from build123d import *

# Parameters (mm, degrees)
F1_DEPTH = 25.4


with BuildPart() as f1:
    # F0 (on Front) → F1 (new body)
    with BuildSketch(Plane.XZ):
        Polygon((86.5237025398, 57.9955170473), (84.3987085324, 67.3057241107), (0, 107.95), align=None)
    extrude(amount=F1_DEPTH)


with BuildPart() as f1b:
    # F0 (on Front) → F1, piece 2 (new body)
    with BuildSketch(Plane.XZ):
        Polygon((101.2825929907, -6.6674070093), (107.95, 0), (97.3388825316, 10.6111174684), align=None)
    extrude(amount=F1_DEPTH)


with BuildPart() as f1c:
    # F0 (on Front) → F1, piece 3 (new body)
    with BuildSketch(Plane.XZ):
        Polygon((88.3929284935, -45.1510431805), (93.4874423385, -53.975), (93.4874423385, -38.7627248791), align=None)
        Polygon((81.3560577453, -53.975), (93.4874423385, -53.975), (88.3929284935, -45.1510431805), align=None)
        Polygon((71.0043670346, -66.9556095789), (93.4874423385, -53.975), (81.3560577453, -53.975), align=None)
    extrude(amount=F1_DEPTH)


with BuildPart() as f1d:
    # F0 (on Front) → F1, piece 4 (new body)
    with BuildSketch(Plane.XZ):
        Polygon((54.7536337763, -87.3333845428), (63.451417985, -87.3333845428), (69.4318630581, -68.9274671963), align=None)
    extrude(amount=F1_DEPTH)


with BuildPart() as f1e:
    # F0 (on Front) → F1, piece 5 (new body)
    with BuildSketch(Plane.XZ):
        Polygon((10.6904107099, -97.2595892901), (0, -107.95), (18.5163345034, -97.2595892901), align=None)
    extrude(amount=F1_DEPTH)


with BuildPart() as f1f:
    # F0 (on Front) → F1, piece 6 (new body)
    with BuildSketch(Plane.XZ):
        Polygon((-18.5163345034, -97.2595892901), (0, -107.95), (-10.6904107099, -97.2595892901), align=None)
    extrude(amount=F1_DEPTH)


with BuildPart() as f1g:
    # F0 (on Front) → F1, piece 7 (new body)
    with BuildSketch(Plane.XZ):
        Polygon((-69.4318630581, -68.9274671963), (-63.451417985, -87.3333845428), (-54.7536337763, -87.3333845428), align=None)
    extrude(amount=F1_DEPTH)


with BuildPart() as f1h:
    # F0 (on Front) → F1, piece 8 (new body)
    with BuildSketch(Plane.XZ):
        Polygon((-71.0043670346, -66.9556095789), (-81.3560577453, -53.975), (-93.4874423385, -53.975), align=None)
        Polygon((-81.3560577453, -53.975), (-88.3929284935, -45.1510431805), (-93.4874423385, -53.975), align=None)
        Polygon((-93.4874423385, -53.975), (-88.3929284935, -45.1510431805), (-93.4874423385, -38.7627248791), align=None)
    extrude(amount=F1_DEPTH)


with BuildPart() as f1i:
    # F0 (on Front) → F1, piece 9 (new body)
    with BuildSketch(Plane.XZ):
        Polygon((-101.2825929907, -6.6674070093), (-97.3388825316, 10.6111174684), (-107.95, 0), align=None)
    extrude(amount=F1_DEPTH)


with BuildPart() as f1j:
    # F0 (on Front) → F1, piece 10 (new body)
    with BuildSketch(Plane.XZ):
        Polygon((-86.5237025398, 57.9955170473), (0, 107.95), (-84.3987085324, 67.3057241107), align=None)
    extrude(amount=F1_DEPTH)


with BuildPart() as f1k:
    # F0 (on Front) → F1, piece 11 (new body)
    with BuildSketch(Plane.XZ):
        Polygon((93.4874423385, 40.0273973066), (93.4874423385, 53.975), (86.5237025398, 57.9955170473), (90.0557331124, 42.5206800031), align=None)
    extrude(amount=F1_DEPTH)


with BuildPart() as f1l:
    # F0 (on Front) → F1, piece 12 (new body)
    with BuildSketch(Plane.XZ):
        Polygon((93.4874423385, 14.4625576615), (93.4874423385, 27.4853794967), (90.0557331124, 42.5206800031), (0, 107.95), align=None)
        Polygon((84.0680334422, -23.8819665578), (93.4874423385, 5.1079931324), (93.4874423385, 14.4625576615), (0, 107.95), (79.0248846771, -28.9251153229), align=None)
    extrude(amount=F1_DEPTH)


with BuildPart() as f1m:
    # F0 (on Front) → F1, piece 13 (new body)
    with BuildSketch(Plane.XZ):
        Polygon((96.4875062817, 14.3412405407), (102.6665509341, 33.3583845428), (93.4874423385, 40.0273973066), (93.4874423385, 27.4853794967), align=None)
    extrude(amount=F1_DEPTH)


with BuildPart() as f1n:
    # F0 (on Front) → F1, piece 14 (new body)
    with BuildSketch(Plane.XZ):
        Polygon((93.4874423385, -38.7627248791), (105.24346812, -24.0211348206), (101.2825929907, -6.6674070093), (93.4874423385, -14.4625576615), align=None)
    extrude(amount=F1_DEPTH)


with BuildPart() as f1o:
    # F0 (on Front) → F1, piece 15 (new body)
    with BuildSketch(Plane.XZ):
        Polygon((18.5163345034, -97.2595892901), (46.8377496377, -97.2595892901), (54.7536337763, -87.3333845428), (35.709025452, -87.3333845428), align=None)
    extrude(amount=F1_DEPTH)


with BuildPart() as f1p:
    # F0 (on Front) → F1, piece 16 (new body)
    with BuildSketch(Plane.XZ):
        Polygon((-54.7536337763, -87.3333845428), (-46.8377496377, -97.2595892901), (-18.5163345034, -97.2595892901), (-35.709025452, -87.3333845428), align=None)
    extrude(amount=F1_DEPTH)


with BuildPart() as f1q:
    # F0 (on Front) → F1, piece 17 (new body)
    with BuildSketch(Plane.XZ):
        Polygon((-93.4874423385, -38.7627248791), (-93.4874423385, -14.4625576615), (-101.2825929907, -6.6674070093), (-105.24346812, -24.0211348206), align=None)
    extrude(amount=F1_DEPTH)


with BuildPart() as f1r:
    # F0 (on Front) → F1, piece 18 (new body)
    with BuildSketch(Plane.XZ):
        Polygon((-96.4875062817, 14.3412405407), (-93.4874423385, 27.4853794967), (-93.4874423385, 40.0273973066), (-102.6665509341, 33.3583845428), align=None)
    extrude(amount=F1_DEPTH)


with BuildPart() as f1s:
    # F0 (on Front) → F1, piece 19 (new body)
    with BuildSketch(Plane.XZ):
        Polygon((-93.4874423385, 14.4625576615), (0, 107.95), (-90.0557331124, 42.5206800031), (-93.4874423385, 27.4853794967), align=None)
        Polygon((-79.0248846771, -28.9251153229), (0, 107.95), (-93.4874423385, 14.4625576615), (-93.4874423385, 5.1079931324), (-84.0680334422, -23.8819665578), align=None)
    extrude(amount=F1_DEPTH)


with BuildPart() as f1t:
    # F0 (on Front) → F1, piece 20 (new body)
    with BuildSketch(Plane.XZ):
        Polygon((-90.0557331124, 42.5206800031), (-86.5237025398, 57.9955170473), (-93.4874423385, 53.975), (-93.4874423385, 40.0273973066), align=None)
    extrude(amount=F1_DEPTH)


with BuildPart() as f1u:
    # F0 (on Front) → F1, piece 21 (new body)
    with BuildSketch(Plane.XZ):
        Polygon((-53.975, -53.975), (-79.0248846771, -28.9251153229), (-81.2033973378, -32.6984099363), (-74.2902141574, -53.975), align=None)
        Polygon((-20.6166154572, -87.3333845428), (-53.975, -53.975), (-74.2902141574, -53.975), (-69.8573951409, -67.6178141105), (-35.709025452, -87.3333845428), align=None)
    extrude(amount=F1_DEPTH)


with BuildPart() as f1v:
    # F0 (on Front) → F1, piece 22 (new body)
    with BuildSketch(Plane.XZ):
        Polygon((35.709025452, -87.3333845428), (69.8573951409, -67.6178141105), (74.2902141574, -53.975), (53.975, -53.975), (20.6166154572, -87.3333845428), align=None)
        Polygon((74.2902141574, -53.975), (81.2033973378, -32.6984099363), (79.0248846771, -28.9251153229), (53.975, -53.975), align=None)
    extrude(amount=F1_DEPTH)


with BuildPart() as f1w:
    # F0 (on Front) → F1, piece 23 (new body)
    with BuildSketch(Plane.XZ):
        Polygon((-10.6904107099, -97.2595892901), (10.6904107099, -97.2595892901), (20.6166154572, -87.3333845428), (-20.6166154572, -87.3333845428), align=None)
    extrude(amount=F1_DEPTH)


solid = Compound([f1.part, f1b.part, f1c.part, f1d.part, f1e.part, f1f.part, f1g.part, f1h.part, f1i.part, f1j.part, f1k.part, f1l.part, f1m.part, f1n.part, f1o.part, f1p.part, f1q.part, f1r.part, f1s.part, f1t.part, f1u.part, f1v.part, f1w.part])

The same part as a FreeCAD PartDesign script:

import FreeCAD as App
import Part
import Sketcher
from FreeCAD import Vector
Q = App.Units.Quantity

doc = App.newDocument("Part")
body = doc.addObject("PartDesign::Body", "Body")

# Sketch on XZ plane
sketch1 = body.newObject("Sketcher::SketchObject", "Sketch")
sketch1.AttachmentSupport = (doc.getObject("XZ_Plane"), [""])
sketch1.MapMode = "FlatFace"
sketch1.addGeometry([
    Part.LineSegment(Vector(87, 58, 0), Vector(84, 67, 0)),
    Part.LineSegment(Vector(84, 67, 0), Vector(0, 108, 0)),
    Part.LineSegment(Vector(0, 108, 0), Vector(87, 58, 0)),
], False)
sketch1.addConstraint([
    Sketcher.Constraint("Coincident", 0, 2, 1, 1),
    Sketcher.Constraint("Coincident", 1, 2, 2, 1),
    Sketcher.Constraint("Coincident", 2, 2, 0, 1),
    Sketcher.Constraint("PointOnObject", 1, 2, -2),
    Sketcher.Constraint("Angle", 2, Q("-30 deg")),
    Sketcher.Constraint("DistanceY", -1, 1, 1, 2, Q("4.25 in")),
    Sketcher.Constraint("Distance", 1, 93.675499),
    Sketcher.Constraint("DistanceX", -1, 1, 0, 2, 84.398709),
    Sketcher.Constraint("Distance", 0, 9.549636),
])
pad1 = body.newObject("PartDesign::Pad", "Pad")
pad1.Profile = sketch1
pad1.Length = Q("1 in")
body2 = doc.addObject("PartDesign::Body", "Body001")

# Sketch on XZ plane
sketch2 = body2.newObject("Sketcher::SketchObject", "Sketch001")
sketch2.AttachmentSupport = (doc.getObject("XZ_Plane001"), [""])
sketch2.MapMode = "FlatFace"
sketch2.addGeometry([
    Part.LineSegment(Vector(101, -7, 0), Vector(108, 0, 0)),
    Part.LineSegment(Vector(108, 0, 0), Vector(97, 11, 0)),
    Part.LineSegment(Vector(97, 11, 0), Vector(101, -7, 0)),
], False)
sketch2.addConstraint([
    Sketcher.Constraint("Coincident", 0, 2, 1, 1),
    Sketcher.Constraint("Coincident", 1, 2, 2, 1),
    Sketcher.Constraint("Coincident", 2, 2, 0, 1),
    Sketcher.Constraint("PointOnObject", 0, 2, -1),
    Sketcher.Constraint("Perpendicular", 0, 1),
    Sketcher.Constraint("Angle", 0, Q("45 deg")),
    Sketcher.Constraint("DistanceX", -1, 1, 0, 2, Q("4.25 in")),
    Sketcher.Constraint("DistanceX", 1, 2, 2, 2, 3.94371),
    Sketcher.Constraint("Distance", 0, 9.429137),
])
pad2 = body2.newObject("PartDesign::Pad", "Pad001")
pad2.Profile = sketch2
pad2.Length = Q("1 in")
body3 = doc.addObject("PartDesign::Body", "Body002")

# Sketch on XZ plane
sketch3 = body3.newObject("Sketcher::SketchObject", "Sketch002")
sketch3.AttachmentSupport = (doc.getObject("XZ_Plane002"), [""])
sketch3.MapMode = "FlatFace"
sketch3.addGeometry([
    Part.LineSegment(Vector(93, -54, 0), Vector(93, -39, 0)),  # 0
    Part.LineSegment(Vector(93, -39, 0), Vector(88, -45, 0)),  # 1
    Part.LineSegment(Vector(88, -45, 0), Vector(81, -54, 0)),  # 2
    Part.LineSegment(Vector(81, -54, 0), Vector(71, -67, 0)),  # 3
    Part.LineSegment(Vector(71, -67, 0), Vector(93, -54, 0)),  # 4
], False)
sketch3.addConstraint([
    Sketcher.Constraint("Coincident", 0, 2, 1, 1),
    Sketcher.Constraint("Coincident", 1, 2, 2, 1),
    Sketcher.Constraint("Coincident", 2, 2, 3, 1),
    Sketcher.Constraint("Coincident", 3, 2, 4, 1),
    Sketcher.Constraint("Coincident", 4, 2, 0, 1),
    Sketcher.Constraint("Vertical", 0),
    Sketcher.Constraint("Parallel", 1, 2),
    Sketcher.Constraint("Parallel", 2, 3),
    Sketcher.Constraint("Horizontal", 2, 2, 4, 2),
    Sketcher.Constraint("Angle", 4, Q("30 deg")),
    Sketcher.Constraint("DistanceY", 2, 2, -1, 1, Q("2.125 in")),
    Sketcher.Constraint("DistanceY", 1, 2, -1, 1, Q("1.7776001 in")),
    Sketcher.Constraint("Distance", 4, 25.961219),
    Sketcher.Constraint("DistanceY", 0, 1, 0, 2, 15.212275),
    Sketcher.Constraint("DistanceX", -1, 1, 1, 2, 88.392928),
])
pad3 = body3.newObject("PartDesign::Pad", "Pad002")
pad3.Profile = sketch3
pad3.Length = Q("1 in")
body4 = doc.addObject("PartDesign::Body", "Body003")

# Sketch on XZ plane
sketch4 = body4.newObject("Sketcher::SketchObject", "Sketch003")
sketch4.AttachmentSupport = (doc.getObject("XZ_Plane003"), [""])
sketch4.MapMode = "FlatFace"
sketch4.addGeometry([
    Part.LineSegment(Vector(55, -87, 0), Vector(63, -87, 0)),
    Part.LineSegment(Vector(63, -87, 0), Vector(69, -69, 0)),
    Part.LineSegment(Vector(69, -69, 0), Vector(55, -87, 0)),
], False)
sketch4.addConstraint([
    Sketcher.Constraint("Coincident", 0, 2, 1, 1),
    Sketcher.Constraint("Coincident", 1, 2, 2, 1),
    Sketcher.Constraint("Coincident", 2, 2, 0, 1),
    Sketcher.Constraint("Horizontal", 0),
    Sketcher.Constraint("Angle", 1, Q("72 deg")),
    Sketcher.Constraint("Distance", 2, 23.542052),
    Sketcher.Constraint("DistanceX", 0, 1, 0, 2, 8.697784),
    Sketcher.Constraint("DistanceX", -1, 1, 0, 2, 63.451418),
    Sketcher.Constraint("DistanceY", 0, 2, -1, 1, 87.333385),
])
pad4 = body4.newObject("PartDesign::Pad", "Pad003")
pad4.Profile = sketch4
pad4.Length = Q("1 in")
body5 = doc.addObject("PartDesign::Body", "Body004")

# Sketch on XZ plane
sketch5 = body5.newObject("Sketcher::SketchObject", "Sketch004")
sketch5.AttachmentSupport = (doc.getObject("XZ_Plane004"), [""])
sketch5.MapMode = "FlatFace"
sketch5.addGeometry([
    Part.LineSegment(Vector(11, -97, 0), Vector(0, -108, 0)),
    Part.LineSegment(Vector(0, -108, 0), Vector(19, -97, 0)),
    Part.LineSegment(Vector(19, -97, 0), Vector(11, -97, 0)),
], False)
sketch5.addConstraint([
    Sketcher.Constraint("Coincident", 0, 2, 1, 1),
    Sketcher.Constraint("Coincident", 1, 2, 2, 1),
    Sketcher.Constraint("Coincident", 2, 2, 0, 1),
    Sketcher.Constraint("Horizontal", 2),
    Sketcher.Constraint("PointOnObject", 0, 2, -2),
    Sketcher.Constraint("Angle", 0, Q("-135 deg")),
    Sketcher.Constraint("Angle", 1, Q("30 deg")),
    Sketcher.Constraint("DistanceY", 0, 2, -1, 1, Q("4.25 in")),
    Sketcher.Constraint("Distance", 1, 21.380821),
])
pad5 = body5.newObject("PartDesign::Pad", "Pad004")
pad5.Profile = sketch5
pad5.Length = Q("1 in")
body6 = doc.addObject("PartDesign::Body", "Body005")

# Sketch on XZ plane
sketch6 = body6.newObject("Sketcher::SketchObject", "Sketch005")
sketch6.AttachmentSupport = (doc.getObject("XZ_Plane005"), [""])
sketch6.MapMode = "FlatFace"
sketch6.addGeometry([
    Part.LineSegment(Vector(-19, -97, 0), Vector(0, -108, 0)),
    Part.LineSegment(Vector(0, -108, 0), Vector(-11, -97, 0)),
    Part.LineSegment(Vector(-11, -97, 0), Vector(-19, -97, 0)),
], False)
sketch6.addConstraint([
    Sketcher.Constraint("Coincident", 0, 2, 1, 1),
    Sketcher.Constraint("Coincident", 1, 2, 2, 1),
    Sketcher.Constraint("Coincident", 2, 2, 0, 1),
    Sketcher.Constraint("Horizontal", 2),
    Sketcher.Constraint("PointOnObject", 0, 2, -2),
    Sketcher.Constraint("Angle", 0, Q("-30 deg")),
    Sketcher.Constraint("Angle", 1, Q("135 deg")),
    Sketcher.Constraint("DistanceY", 0, 2, -1, 1, Q("4.25 in")),
    Sketcher.Constraint("Distance", 0, 21.380821),
])
pad6 = body6.newObject("PartDesign::Pad", "Pad005")
pad6.Profile = sketch6
pad6.Length = Q("1 in")
body7 = doc.addObject("PartDesign::Body", "Body006")

# Sketch on XZ plane
sketch7 = body7.newObject("Sketcher::SketchObject", "Sketch006")
sketch7.AttachmentSupport = (doc.getObject("XZ_Plane006"), [""])
sketch7.MapMode = "FlatFace"
sketch7.addGeometry([
    Part.LineSegment(Vector(-69, -69, 0), Vector(-63, -87, 0)),
    Part.LineSegment(Vector(-63, -87, 0), Vector(-55, -87, 0)),
    Part.LineSegment(Vector(-55, -87, 0), Vector(-69, -69, 0)),
], False)
sketch7.addConstraint([
    Sketcher.Constraint("Coincident", 0, 2, 1, 1),
    Sketcher.Constraint("Coincident", 1, 2, 2, 1),
    Sketcher.Constraint("Coincident", 2, 2, 0, 1),
    Sketcher.Constraint("Horizontal", 1),
    Sketcher.Constraint("Angle", 0, Q("-72 deg")),
    Sketcher.Constraint("Distance", 2, 23.542052),
    Sketcher.Constraint("DistanceX", 1, 1, 1, 2, 8.697784),
    Sketcher.Constraint("DistanceX", 0, 2, -1, 1, 63.451418),
    Sketcher.Constraint("DistanceY", 0, 2, -1, 1, 87.333385),
])
pad7 = body7.newObject("PartDesign::Pad", "Pad006")
pad7.Profile = sketch7
pad7.Length = Q("1 in")
body8 = doc.addObject("PartDesign::Body", "Body007")

# Sketch on XZ plane
sketch8 = body8.newObject("Sketcher::SketchObject", "Sketch007")
sketch8.AttachmentSupport = (doc.getObject("XZ_Plane007"), [""])
sketch8.MapMode = "FlatFace"
sketch8.addGeometry([
    Part.LineSegment(Vector(-71, -67, 0), Vector(-81, -54, 0)),  # 0
    Part.LineSegment(Vector(-81, -54, 0), Vector(-88, -45, 0)),  # 1
    Part.LineSegment(Vector(-88, -45, 0), Vector(-93, -39, 0)),  # 2
    Part.LineSegment(Vector(-93, -39, 0), Vector(-93, -54, 0)),  # 3
    Part.LineSegment(Vector(-93, -54, 0), Vector(-71, -67, 0)),  # 4
], False)
sketch8.addConstraint([
    Sketcher.Constraint("Coincident", 0, 2, 1, 1),
    Sketcher.Constraint("Coincident", 1, 2, 2, 1),
    Sketcher.Constraint("Coincident", 2, 2, 3, 1),
    Sketcher.Constraint("Coincident", 3, 2, 4, 1),
    Sketcher.Constraint("Coincident", 4, 2, 0, 1),
    Sketcher.Constraint("Vertical", 3),
    Sketcher.Constraint("Parallel", 0, 1),
    Sketcher.Constraint("Parallel", 1, 2),
    Sketcher.Constraint("Horizontal", 0, 2, 3, 2),
    Sketcher.Constraint("Angle", 4, Q("-30 deg")),
    Sketcher.Constraint("DistanceY", 0, 2, -1, 1, Q("2.125 in")),
    Sketcher.Constraint("DistanceY", 1, 2, -1, 1, Q("1.7776001 in")),
    Sketcher.Constraint("Distance", 4, 25.961219),
    Sketcher.Constraint("DistanceY", 3, 2, 3, 1, 15.212275),
    Sketcher.Constraint("DistanceX", 1, 2, -1, 1, 88.392928),
])
pad8 = body8.newObject("PartDesign::Pad", "Pad007")
pad8.Profile = sketch8
pad8.Length = Q("1 in")
body9 = doc.addObject("PartDesign::Body", "Body008")

# Sketch on XZ plane
sketch9 = body9.newObject("Sketcher::SketchObject", "Sketch008")
sketch9.AttachmentSupport = (doc.getObject("XZ_Plane008"), [""])
sketch9.MapMode = "FlatFace"
sketch9.addGeometry([
    Part.LineSegment(Vector(-101, -7, 0), Vector(-97, 11, 0)),
    Part.LineSegment(Vector(-97, 11, 0), Vector(-108, 0, 0)),
    Part.LineSegment(Vector(-108, 0, 0), Vector(-101, -7, 0)),
], False)
sketch9.addConstraint([
    Sketcher.Constraint("Coincident", 0, 2, 1, 1),
    Sketcher.Constraint("Coincident", 1, 2, 2, 1),
    Sketcher.Constraint("Coincident", 2, 2, 0, 1),
    Sketcher.Constraint("PointOnObject", 1, 2, -1),
    Sketcher.Constraint("Perpendicular", 1, 2),
    Sketcher.Constraint("Angle", 1, Q("-135 deg")),
    Sketcher.Constraint("DistanceX", 1, 2, -1, 1, Q("4.25 in")),
    Sketcher.Constraint("DistanceX", 2, 2, 0, 2, 3.94371),
    Sketcher.Constraint("Distance", 0, 17.722874),
])
pad9 = body9.newObject("PartDesign::Pad", "Pad008")
pad9.Profile = sketch9
pad9.Length = Q("1 in")
body10 = doc.addObject("PartDesign::Body", "Body009")

# Sketch on XZ plane
sketch10 = body10.newObject("Sketcher::SketchObject", "Sketch009")
sketch10.AttachmentSupport = (doc.getObject("XZ_Plane009"), [""])
sketch10.MapMode = "FlatFace"
sketch10.addGeometry([
    Part.LineSegment(Vector(-87, 58, 0), Vector(0, 108, 0)),
    Part.LineSegment(Vector(0, 108, 0), Vector(-84, 67, 0)),
    Part.LineSegment(Vector(-84, 67, 0), Vector(-87, 58, 0)),
], False)
sketch10.addConstraint([
    Sketcher.Constraint("Coincident", 0, 2, 1, 1),
    Sketcher.Constraint("Coincident", 1, 2, 2, 1),
    Sketcher.Constraint("Coincident", 2, 2, 0, 1),
    Sketcher.Constraint("PointOnObject", 0, 2, -2),
    Sketcher.Constraint("Angle", 0, Q("30 deg")),
    Sketcher.Constraint("DistanceY", -1, 1, 0, 2, Q("4.25 in")),
    Sketcher.Constraint("Distance", 1, 93.675499),
    Sketcher.Constraint("DistanceX", 1, 2, -1, 1, 84.398709),
    Sketcher.Constraint("Distance", 0, 99.908966),
])
pad10 = body10.newObject("PartDesign::Pad", "Pad009")
pad10.Profile = sketch10
pad10.Length = Q("1 in")
body11 = doc.addObject("PartDesign::Body", "Body010")

# Sketch on XZ plane
sketch11 = body11.newObject("Sketcher::SketchObject", "Sketch010")
sketch11.AttachmentSupport = (doc.getObject("XZ_Plane010"), [""])
sketch11.MapMode = "FlatFace"
sketch11.addGeometry([
    Part.LineSegment(Vector(93.5, 40, 0), Vector(93.5, 54, 0)),
    Part.LineSegment(Vector(93.5, 54, 0), Vector(86.5, 58, 0)),
    Part.LineSegment(Vector(86.5, 58, 0), Vector(90.1, 42.5, 0)),
    Part.LineSegment(Vector(90.1, 42.5, 0), Vector(93.5, 40, 0)),
], False)
sketch11.addConstraint([
    Sketcher.Constraint("Coincident", 0, 2, 1, 1),
    Sketcher.Constraint("Coincident", 1, 2, 2, 1),
    Sketcher.Constraint("Coincident", 2, 2, 3, 1),
    Sketcher.Constraint("Coincident", 3, 2, 0, 1),
    Sketcher.Constraint("Vertical", 0),
    Sketcher.Constraint("Angle", 1, Q("150 deg")),
    Sketcher.Constraint("Angle", 3, Q("-36 deg")),
    Sketcher.Constraint("DistanceY", -1, 1, 0, 2, Q("2.125 in")),
    Sketcher.Constraint("Distance", 2, 15.872801),
    Sketcher.Constraint("DistanceY", 0, 1, 0, 2, 13.947603),
    Sketcher.Constraint("DistanceY", -1, 1, 2, 2, 42.52068),
    Sketcher.Constraint("DistanceX", -1, 1, 0, 2, 93.487442),
])
pad11 = body11.newObject("PartDesign::Pad", "Pad010")
pad11.Profile = sketch11
pad11.Length = Q("1 in")
body12 = doc.addObject("PartDesign::Body", "Body011")

# Sketch on XZ plane
sketch12 = body12.newObject("Sketcher::SketchObject", "Sketch011")
sketch12.AttachmentSupport = (doc.getObject("XZ_Plane011"), [""])
sketch12.MapMode = "FlatFace"
sketch12.addGeometry([
    Part.LineSegment(Vector(93, 27, 0), Vector(90, 43, 0)),  # 0
    Part.LineSegment(Vector(90, 43, 0), Vector(0, 108, 0)),  # 1
    Part.LineSegment(Vector(0, 108, 0), Vector(79, -29, 0)),  # 2
    Part.LineSegment(Vector(79, -29, 0), Vector(84, -24, 0)),  # 3
    Part.LineSegment(Vector(84, -24, 0), Vector(93, 5, 0)),  # 4
    Part.LineSegment(Vector(93, 5, 0), Vector(93, 27, 0)),  # 5
], False)
sketch12.addConstraint([
    Sketcher.Constraint("Coincident", 0, 2, 1, 1),
    Sketcher.Constraint("Coincident", 1, 2, 2, 1),
    Sketcher.Constraint("Coincident", 2, 2, 3, 1),
    Sketcher.Constraint("Coincident", 3, 2, 4, 1),
    Sketcher.Constraint("Coincident", 4, 2, 5, 1),
    Sketcher.Constraint("Coincident", 5, 2, 0, 1),
    Sketcher.Constraint("Vertical", 5),
    Sketcher.Constraint("PointOnObject", 1, 2, -2),
    Sketcher.Constraint("Angle", 1, Q("144 deg")),
    Sketcher.Constraint("Angle", 2, Q("-60 deg")),
    Sketcher.Constraint("Angle", 3, Q("45 deg")),
    Sketcher.Constraint("Angle", 4, Q("72 deg")),
    Sketcher.Constraint("DistanceY", -1, 1, 1, 2, Q("4.25 in")),
    Sketcher.Constraint("DistanceX", 3, 2, 0, 2, 5.9877),
    Sketcher.Constraint("DistanceY", 5, 2, 0, 2, 15.035301),
    Sketcher.Constraint("Distance", 0, 15.421961),
    Sketcher.Constraint("Distance", 2, 158.049769),
    Sketcher.Constraint("Distance", 3, 7.132089),
])
pad12 = body12.newObject("PartDesign::Pad", "Pad011")
pad12.Profile = sketch12
pad12.Length = Q("1 in")
body13 = doc.addObject("PartDesign::Body", "Body012")

# Sketch on XZ plane
sketch13 = body13.newObject("Sketcher::SketchObject", "Sketch012")
sketch13.AttachmentSupport = (doc.getObject("XZ_Plane012"), [""])
sketch13.MapMode = "FlatFace"
sketch13.addGeometry([
    Part.LineSegment(Vector(96, 14, 0), Vector(103, 33, 0)),
    Part.LineSegment(Vector(103, 33, 0), Vector(93, 40, 0)),
    Part.LineSegment(Vector(93, 40, 0), Vector(93, 27, 0)),
    Part.LineSegment(Vector(93, 27, 0), Vector(96, 14, 0)),
], False)
sketch13.addConstraint([
    Sketcher.Constraint("Coincident", 0, 2, 1, 1),
    Sketcher.Constraint("Coincident", 1, 2, 2, 1),
    Sketcher.Constraint("Coincident", 2, 2, 3, 1),
    Sketcher.Constraint("Coincident", 3, 2, 0, 1),
    Sketcher.Constraint("Vertical", 2),
    Sketcher.Constraint("Angle", 0, Q("72 deg")),
    Sketcher.Constraint("Angle", 1, Q("144 deg")),
    Sketcher.Constraint("Distance", 0, 19.995809),
    Sketcher.Constraint("DistanceY", 2, 2, 2, 1, 12.542018),
    Sketcher.Constraint("DistanceX", -1, 1, 0, 2, 102.666551),
    Sketcher.Constraint("DistanceY", -1, 1, 2, 2, 27.485379),
    Sketcher.Constraint("DistanceY", -1, 1, 3, 2, 14.341241),
])
pad13 = body13.newObject("PartDesign::Pad", "Pad012")
pad13.Profile = sketch13
pad13.Length = Q("1 in")
body14 = doc.addObject("PartDesign::Body", "Body013")

# Sketch on XZ plane
sketch14 = body14.newObject("Sketcher::SketchObject", "Sketch013")
sketch14.AttachmentSupport = (doc.getObject("XZ_Plane013"), [""])
sketch14.MapMode = "FlatFace"
sketch14.addGeometry([
    Part.LineSegment(Vector(93, -39, 0), Vector(105, -24, 0)),
    Part.LineSegment(Vector(105, -24, 0), Vector(101, -7, 0)),
    Part.LineSegment(Vector(101, -7, 0), Vector(93, -14, 0)),
    Part.LineSegment(Vector(93, -14, 0), Vector(93, -39, 0)),
], False)
sketch14.addConstraint([
    Sketcher.Constraint("Coincident", 0, 2, 1, 1),
    Sketcher.Constraint("Coincident", 1, 2, 2, 1),
    Sketcher.Constraint("Coincident", 2, 2, 3, 1),
    Sketcher.Constraint("Coincident", 3, 2, 0, 1),
    Sketcher.Constraint("Vertical", 3),
    Sketcher.Constraint("Angle", 2, Q("-135 deg")),
    Sketcher.Constraint("Distance", 0, 18.855201),
    Sketcher.Constraint("Distance", 1, 17.800011),
    Sketcher.Constraint("DistanceY", 3, 2, 3, 1, 24.300167),
    Sketcher.Constraint("DistanceX", -1, 1, 0, 2, 105.243468),
    Sketcher.Constraint("DistanceX", 2, 2, 1, 2, 7.795151),
    Sketcher.Constraint("DistanceY", 0, 2, -1, 1, 24.021135),
])
pad14 = body14.newObject("PartDesign::Pad", "Pad013")
pad14.Profile = sketch14
pad14.Length = Q("1 in")
body15 = doc.addObject("PartDesign::Body", "Body014")

# Sketch on XZ plane
sketch15 = body15.newObject("Sketcher::SketchObject", "Sketch014")
sketch15.AttachmentSupport = (doc.getObject("XZ_Plane014"), [""])
sketch15.MapMode = "FlatFace"
sketch15.addGeometry([
    Part.LineSegment(Vector(19, -97, 0), Vector(47, -97, 0)),
    Part.LineSegment(Vector(47, -97, 0), Vector(55, -87, 0)),
    Part.LineSegment(Vector(55, -87, 0), Vector(36, -87, 0)),
    Part.LineSegment(Vector(36, -87, 0), Vector(19, -97, 0)),
], False)
sketch15.addConstraint([
    Sketcher.Constraint("Coincident", 0, 2, 1, 1),
    Sketcher.Constraint("Coincident", 1, 2, 2, 1),
    Sketcher.Constraint("Coincident", 2, 2, 3, 1),
    Sketcher.Constraint("Coincident", 3, 2, 0, 1),
    Sketcher.Constraint("Horizontal", 0),
    Sketcher.Constraint("Horizontal", 2),
    Sketcher.Constraint("Angle", 3, Q("-150 deg")),
    Sketcher.Constraint("DistanceX", 2, 2, 2, 1, 19.044608),
    Sketcher.Constraint("DistanceX", 3, 2, 1, 2, 36.237299),
    Sketcher.Constraint("DistanceX", 0, 1, 0, 2, 28.321415),
    Sketcher.Constraint("DistanceX", -1, 1, 0, 2, 46.83775),
    Sketcher.Constraint("DistanceY", 0, 2, -1, 1, 97.259589),
])
pad15 = body15.newObject("PartDesign::Pad", "Pad014")
pad15.Profile = sketch15
pad15.Length = Q("1 in")
body16 = doc.addObject("PartDesign::Body", "Body015")

# Sketch on XZ plane
sketch16 = body16.newObject("Sketcher::SketchObject", "Sketch015")
sketch16.AttachmentSupport = (doc.getObject("XZ_Plane015"), [""])
sketch16.MapMode = "FlatFace"
sketch16.addGeometry([
    Part.LineSegment(Vector(-55, -87, 0), Vector(-47, -97, 0)),
    Part.LineSegment(Vector(-47, -97, 0), Vector(-19, -97, 0)),
    Part.LineSegment(Vector(-19, -97, 0), Vector(-36, -87, 0)),
    Part.LineSegment(Vector(-36, -87, 0), Vector(-55, -87, 0)),
], False)
sketch16.addConstraint([
    Sketcher.Constraint("Coincident", 0, 2, 1, 1),
    Sketcher.Constraint("Coincident", 1, 2, 2, 1),
    Sketcher.Constraint("Coincident", 2, 2, 3, 1),
    Sketcher.Constraint("Coincident", 3, 2, 0, 1),
    Sketcher.Constraint("Horizontal", 1),
    Sketcher.Constraint("Horizontal", 3),
    Sketcher.Constraint("Angle", 2, Q("150 deg")),
    Sketcher.Constraint("DistanceX", 3, 2, 3, 1, 19.044608),
    Sketcher.Constraint("DistanceX", 3, 2, 1, 2, 36.237299),
    Sketcher.Constraint("DistanceX", 1, 1, 1, 2, 28.321415),
    Sketcher.Constraint("DistanceX", 0, 2, -1, 1, 46.83775),
    Sketcher.Constraint("DistanceY", 0, 2, -1, 1, 97.259589),
])
pad16 = body16.newObject("PartDesign::Pad", "Pad015")
pad16.Profile = sketch16
pad16.Length = Q("1 in")
body17 = doc.addObject("PartDesign::Body", "Body016")

# Sketch on XZ plane
sketch17 = body17.newObject("Sketcher::SketchObject", "Sketch016")
sketch17.AttachmentSupport = (doc.getObject("XZ_Plane016"), [""])
sketch17.MapMode = "FlatFace"
sketch17.addGeometry([
    Part.LineSegment(Vector(-93, -39, 0), Vector(-93, -14, 0)),
    Part.LineSegment(Vector(-93, -14, 0), Vector(-101, -7, 0)),
    Part.LineSegment(Vector(-101, -7, 0), Vector(-105, -24, 0)),
    Part.LineSegment(Vector(-105, -24, 0), Vector(-93, -39, 0)),
], False)
sketch17.addConstraint([
    Sketcher.Constraint("Coincident", 0, 2, 1, 1),
    Sketcher.Constraint("Coincident", 1, 2, 2, 1),
    Sketcher.Constraint("Coincident", 2, 2, 3, 1),
    Sketcher.Constraint("Coincident", 3, 2, 0, 1),
    Sketcher.Constraint("Vertical", 0),
    Sketcher.Constraint("Angle", 1, Q("135 deg")),
    Sketcher.Constraint("Distance", 3, 18.855201),
    Sketcher.Constraint("Distance", 2, 17.800011),
    Sketcher.Constraint("DistanceY", 0, 1, 0, 2, 24.300167),
    Sketcher.Constraint("DistanceX", 2, 2, -1, 1, 105.243468),
    Sketcher.Constraint("DistanceX", 1, 2, 0, 2, 7.795151),
    Sketcher.Constraint("DistanceY", 0, 2, -1, 1, 14.462558),
])
pad17 = body17.newObject("PartDesign::Pad", "Pad016")
pad17.Profile = sketch17
pad17.Length = Q("1 in")
body18 = doc.addObject("PartDesign::Body", "Body017")

# Sketch on XZ plane
sketch18 = body18.newObject("Sketcher::SketchObject", "Sketch017")
sketch18.AttachmentSupport = (doc.getObject("XZ_Plane017"), [""])
sketch18.MapMode = "FlatFace"
sketch18.addGeometry([
    Part.LineSegment(Vector(-96, 14, 0), Vector(-93, 27, 0)),
    Part.LineSegment(Vector(-93, 27, 0), Vector(-93, 40, 0)),
    Part.LineSegment(Vector(-93, 40, 0), Vector(-103, 33, 0)),
    Part.LineSegment(Vector(-103, 33, 0), Vector(-96, 14, 0)),
], False)
sketch18.addConstraint([
    Sketcher.Constraint("Coincident", 0, 2, 1, 1),
    Sketcher.Constraint("Coincident", 1, 2, 2, 1),
    Sketcher.Constraint("Coincident", 2, 2, 3, 1),
    Sketcher.Constraint("Coincident", 3, 2, 0, 1),
    Sketcher.Constraint("Vertical", 1),
    Sketcher.Constraint("Angle", 2, Q("-144 deg")),
    Sketcher.Constraint("Angle", 3, Q("-72 deg")),
    Sketcher.Constraint("Distance", 3, 19.995809),
    Sketcher.Constraint("DistanceY", 1, 1, 1, 2, 12.542018),
    Sketcher.Constraint("DistanceY", -1, 1, 0, 2, 27.485379),
    Sketcher.Constraint("DistanceX", 2, 2, -1, 1, 102.666551),
    Sketcher.Constraint("DistanceY", -1, 1, 3, 2, 14.341241),
])
pad18 = body18.newObject("PartDesign::Pad", "Pad017")
pad18.Profile = sketch18
pad18.Length = Q("1 in")
body19 = doc.addObject("PartDesign::Body", "Body018")

# Sketch on XZ plane
sketch19 = body19.newObject("Sketcher::SketchObject", "Sketch018")
sketch19.AttachmentSupport = (doc.getObject("XZ_Plane018"), [""])
sketch19.MapMode = "FlatFace"
sketch19.addGeometry([
    Part.LineSegment(Vector(0, 108, 0), Vector(-90, 43, 0)),  # 0
    Part.LineSegment(Vector(-90, 43, 0), Vector(-93, 27, 0)),  # 1
    Part.LineSegment(Vector(-93, 27, 0), Vector(-93, 5, 0)),  # 2
    Part.LineSegment(Vector(-93, 5, 0), Vector(-84, -24, 0)),  # 3
    Part.LineSegment(Vector(-84, -24, 0), Vector(-79, -29, 0)),  # 4
    Part.LineSegment(Vector(-79, -29, 0), Vector(0, 108, 0)),  # 5
], False)
sketch19.addConstraint([
    Sketcher.Constraint("Coincident", 0, 2, 1, 1),
    Sketcher.Constraint("Coincident", 1, 2, 2, 1),
    Sketcher.Constraint("Coincident", 2, 2, 3, 1),
    Sketcher.Constraint("Coincident", 3, 2, 4, 1),
    Sketcher.Constraint("Coincident", 4, 2, 5, 1),
    Sketcher.Constraint("Coincident", 5, 2, 0, 1),
    Sketcher.Constraint("Vertical", 2),
    Sketcher.Constraint("PointOnObject", 5, 2, -2),
    Sketcher.Constraint("Angle", 0, Q("-144 deg")),
    Sketcher.Constraint("Angle", 3, Q("-72 deg")),
    Sketcher.Constraint("Angle", 4, Q("-45 deg")),
    Sketcher.Constraint("Angle", 5, Q("60 deg")),
    Sketcher.Constraint("DistanceY", -1, 1, 5, 2, Q("4.25 in")),
    Sketcher.Constraint("DistanceY", 1, 2, 0, 2, 15.035301),
    Sketcher.Constraint("DistanceX", 0, 2, 3, 2, 5.9877),
    Sketcher.Constraint("Distance", 1, 15.421961),
    Sketcher.Constraint("Distance", 4, 7.132089),
    Sketcher.Constraint("Distance", 5, 158.049769),
])
pad19 = body19.newObject("PartDesign::Pad", "Pad018")
pad19.Profile = sketch19
pad19.Length = Q("1 in")
body20 = doc.addObject("PartDesign::Body", "Body019")

# Sketch on XZ plane
sketch20 = body20.newObject("Sketcher::SketchObject", "Sketch019")
sketch20.AttachmentSupport = (doc.getObject("XZ_Plane019"), [""])
sketch20.MapMode = "FlatFace"
sketch20.addGeometry([
    Part.LineSegment(Vector(-90.1, 42.5, 0), Vector(-86.5, 58, 0)),
    Part.LineSegment(Vector(-86.5, 58, 0), Vector(-93.5, 54, 0)),
    Part.LineSegment(Vector(-93.5, 54, 0), Vector(-93.5, 40, 0)),
    Part.LineSegment(Vector(-93.5, 40, 0), Vector(-90.1, 42.5, 0)),
], False)
sketch20.addConstraint([
    Sketcher.Constraint("Coincident", 0, 2, 1, 1),
    Sketcher.Constraint("Coincident", 1, 2, 2, 1),
    Sketcher.Constraint("Coincident", 2, 2, 3, 1),
    Sketcher.Constraint("Coincident", 3, 2, 0, 1),
    Sketcher.Constraint("Vertical", 2),
    Sketcher.Constraint("Angle", 1, Q("-150 deg")),
    Sketcher.Constraint("Angle", 3, Q("36 deg")),
    Sketcher.Constraint("DistanceY", -1, 1, 1, 2, Q("2.125 in")),
    Sketcher.Constraint("Distance", 0, 15.872801),
    Sketcher.Constraint("DistanceY", 2, 2, 2, 1, 13.947603),
    Sketcher.Constraint("DistanceY", -1, 1, 3, 2, 42.52068),
    Sketcher.Constraint("DistanceX", 0, 2, -1, 1, 86.523703),
])
pad20 = body20.newObject("PartDesign::Pad", "Pad019")
pad20.Profile = sketch20
pad20.Length = Q("1 in")
body21 = doc.addObject("PartDesign::Body", "Body020")

# Sketch on XZ plane
sketch21 = body21.newObject("Sketcher::SketchObject", "Sketch020")
sketch21.AttachmentSupport = (doc.getObject("XZ_Plane020"), [""])
sketch21.MapMode = "FlatFace"
sketch21.addGeometry([
    Part.LineSegment(Vector(-79, -28.9, 0), Vector(-81.2, -32.7, 0)),  # 0
    Part.LineSegment(Vector(-81.2, -32.7, 0), Vector(-74.3, -54, 0)),  # 1
    Part.LineSegment(Vector(-74.3, -54, 0), Vector(-69.9, -67.6, 0)),  # 2
    Part.LineSegment(Vector(-69.9, -67.6, 0), Vector(-35.7, -87.3, 0)),  # 3
    Part.LineSegment(Vector(-35.7, -87.3, 0), Vector(-20.6, -87.3, 0)),  # 4
    Part.LineSegment(Vector(-20.6, -87.3, 0), Vector(-79, -28.9, 0)),  # 5
], False)
sketch21.addConstraint([
    Sketcher.Constraint("Coincident", 0, 2, 1, 1),
    Sketcher.Constraint("Coincident", 1, 2, 2, 1),
    Sketcher.Constraint("Coincident", 2, 2, 3, 1),
    Sketcher.Constraint("Coincident", 3, 2, 4, 1),
    Sketcher.Constraint("Coincident", 4, 2, 5, 1),
    Sketcher.Constraint("Coincident", 5, 2, 0, 1),
    Sketcher.Constraint("Horizontal", 4),
    Sketcher.Constraint("Parallel", 1, 2),
    Sketcher.Constraint("Perpendicular", 0, 3),
    Sketcher.Constraint("Angle", 0, Q("-120 deg")),
    Sketcher.Constraint("Angle", 1, Q("-72 deg")),
    Sketcher.Constraint("Angle", 5, Q("135 deg")),
    Sketcher.Constraint("DistanceY", 1, 2, -1, 1, Q("2.125 in")),
    Sketcher.Constraint("DistanceX", 4, 1, 4, 2, 15.09241),
    Sketcher.Constraint("DistanceX", 1, 2, 4, 2, 53.673599),
    Sketcher.Constraint("DistanceY", 2, 2, 5, 2, 38.692699),
    Sketcher.Constraint("Distance", 1, 22.371531),
    Sketcher.Constraint("DistanceX", 0, 2, -1, 1, 81.203397),
])
pad21 = body21.newObject("PartDesign::Pad", "Pad020")
pad21.Profile = sketch21
pad21.Length = Q("1 in")
body22 = doc.addObject("PartDesign::Body", "Body021")

# Sketch on XZ plane
sketch22 = body22.newObject("Sketcher::SketchObject", "Sketch021")
sketch22.AttachmentSupport = (doc.getObject("XZ_Plane021"), [""])
sketch22.MapMode = "FlatFace"
sketch22.addGeometry([
    Part.LineSegment(Vector(35.7, -87.3, 0), Vector(69.9, -67.6, 0)),  # 0
    Part.LineSegment(Vector(69.9, -67.6, 0), Vector(74.3, -54, 0)),  # 1
    Part.LineSegment(Vector(74.3, -54, 0), Vector(81.2, -32.7, 0)),  # 2
    Part.LineSegment(Vector(81.2, -32.7, 0), Vector(79, -28.9, 0)),  # 3
    Part.LineSegment(Vector(79, -28.9, 0), Vector(20.6, -87.3, 0)),  # 4
    Part.LineSegment(Vector(20.6, -87.3, 0), Vector(35.7, -87.3, 0)),  # 5
], False)
sketch22.addConstraint([
    Sketcher.Constraint("Coincident", 0, 2, 1, 1),
    Sketcher.Constraint("Coincident", 1, 2, 2, 1),
    Sketcher.Constraint("Coincident", 2, 2, 3, 1),
    Sketcher.Constraint("Coincident", 3, 2, 4, 1),
    Sketcher.Constraint("Coincident", 4, 2, 5, 1),
    Sketcher.Constraint("Coincident", 5, 2, 0, 1),
    Sketcher.Constraint("Horizontal", 5),
    Sketcher.Constraint("Parallel", 1, 2),
    Sketcher.Constraint("Perpendicular", 0, 3),
    Sketcher.Constraint("Angle", 0, Q("30 deg")),
    Sketcher.Constraint("Angle", 1, Q("72 deg")),
    Sketcher.Constraint("Angle", 4, Q("-135 deg")),
    Sketcher.Constraint("DistanceY", 1, 2, -1, 1, Q("2.125 in")),
    Sketcher.Constraint("DistanceX", 5, 1, 5, 2, 15.09241),
    Sketcher.Constraint("DistanceY", 0, 2, 3, 2, 38.692699),
    Sketcher.Constraint("DistanceX", 4, 2, 1, 2, 53.673599),
    Sketcher.Constraint("Distance", 0, 39.431141),
    Sketcher.Constraint("DistanceX", -1, 1, 0, 2, 69.857395),
])
pad22 = body22.newObject("PartDesign::Pad", "Pad021")
pad22.Profile = sketch22
pad22.Length = Q("1 in")
body23 = doc.addObject("PartDesign::Body", "Body022")

# Sketch on XZ plane
sketch23 = body23.newObject("Sketcher::SketchObject", "Sketch022")
sketch23.AttachmentSupport = (doc.getObject("XZ_Plane022"), [""])
sketch23.MapMode = "FlatFace"
sketch23.addGeometry([
    Part.LineSegment(Vector(-11, -97, 0), Vector(11, -97, 0)),
    Part.LineSegment(Vector(11, -97, 0), Vector(21, -87, 0)),
    Part.LineSegment(Vector(21, -87, 0), Vector(-21, -87, 0)),
    Part.LineSegment(Vector(-21, -87, 0), Vector(-11, -97, 0)),
], False)
sketch23.addConstraint([
    Sketcher.Constraint("Coincident", 0, 2, 1, 1),
    Sketcher.Constraint("Coincident", 1, 2, 2, 1),
    Sketcher.Constraint("Coincident", 2, 2, 3, 1),
    Sketcher.Constraint("Coincident", 3, 2, 0, 1),
    Sketcher.Constraint("Horizontal", 0),
    Sketcher.Constraint("Horizontal", 2),
    Sketcher.Constraint("Perpendicular", 1, 3),
    Sketcher.Constraint("Equal", 1, 3),
    Sketcher.Constraint("DistanceX", 0, 1, 0, 2, 21.380821),
    Sketcher.Constraint("DistanceX", 2, 2, 2, 1, 41.233231),
    Sketcher.Constraint("DistanceX", -1, 1, 0, 2, 10.690411),
    Sketcher.Constraint("DistanceY", 0, 2, -1, 1, 97.259589),
])
pad23 = body23.newObject("PartDesign::Pad", "Pad022")
pad23.Profile = sketch23
pad23.Length = Q("1 in")

doc.recompute()
